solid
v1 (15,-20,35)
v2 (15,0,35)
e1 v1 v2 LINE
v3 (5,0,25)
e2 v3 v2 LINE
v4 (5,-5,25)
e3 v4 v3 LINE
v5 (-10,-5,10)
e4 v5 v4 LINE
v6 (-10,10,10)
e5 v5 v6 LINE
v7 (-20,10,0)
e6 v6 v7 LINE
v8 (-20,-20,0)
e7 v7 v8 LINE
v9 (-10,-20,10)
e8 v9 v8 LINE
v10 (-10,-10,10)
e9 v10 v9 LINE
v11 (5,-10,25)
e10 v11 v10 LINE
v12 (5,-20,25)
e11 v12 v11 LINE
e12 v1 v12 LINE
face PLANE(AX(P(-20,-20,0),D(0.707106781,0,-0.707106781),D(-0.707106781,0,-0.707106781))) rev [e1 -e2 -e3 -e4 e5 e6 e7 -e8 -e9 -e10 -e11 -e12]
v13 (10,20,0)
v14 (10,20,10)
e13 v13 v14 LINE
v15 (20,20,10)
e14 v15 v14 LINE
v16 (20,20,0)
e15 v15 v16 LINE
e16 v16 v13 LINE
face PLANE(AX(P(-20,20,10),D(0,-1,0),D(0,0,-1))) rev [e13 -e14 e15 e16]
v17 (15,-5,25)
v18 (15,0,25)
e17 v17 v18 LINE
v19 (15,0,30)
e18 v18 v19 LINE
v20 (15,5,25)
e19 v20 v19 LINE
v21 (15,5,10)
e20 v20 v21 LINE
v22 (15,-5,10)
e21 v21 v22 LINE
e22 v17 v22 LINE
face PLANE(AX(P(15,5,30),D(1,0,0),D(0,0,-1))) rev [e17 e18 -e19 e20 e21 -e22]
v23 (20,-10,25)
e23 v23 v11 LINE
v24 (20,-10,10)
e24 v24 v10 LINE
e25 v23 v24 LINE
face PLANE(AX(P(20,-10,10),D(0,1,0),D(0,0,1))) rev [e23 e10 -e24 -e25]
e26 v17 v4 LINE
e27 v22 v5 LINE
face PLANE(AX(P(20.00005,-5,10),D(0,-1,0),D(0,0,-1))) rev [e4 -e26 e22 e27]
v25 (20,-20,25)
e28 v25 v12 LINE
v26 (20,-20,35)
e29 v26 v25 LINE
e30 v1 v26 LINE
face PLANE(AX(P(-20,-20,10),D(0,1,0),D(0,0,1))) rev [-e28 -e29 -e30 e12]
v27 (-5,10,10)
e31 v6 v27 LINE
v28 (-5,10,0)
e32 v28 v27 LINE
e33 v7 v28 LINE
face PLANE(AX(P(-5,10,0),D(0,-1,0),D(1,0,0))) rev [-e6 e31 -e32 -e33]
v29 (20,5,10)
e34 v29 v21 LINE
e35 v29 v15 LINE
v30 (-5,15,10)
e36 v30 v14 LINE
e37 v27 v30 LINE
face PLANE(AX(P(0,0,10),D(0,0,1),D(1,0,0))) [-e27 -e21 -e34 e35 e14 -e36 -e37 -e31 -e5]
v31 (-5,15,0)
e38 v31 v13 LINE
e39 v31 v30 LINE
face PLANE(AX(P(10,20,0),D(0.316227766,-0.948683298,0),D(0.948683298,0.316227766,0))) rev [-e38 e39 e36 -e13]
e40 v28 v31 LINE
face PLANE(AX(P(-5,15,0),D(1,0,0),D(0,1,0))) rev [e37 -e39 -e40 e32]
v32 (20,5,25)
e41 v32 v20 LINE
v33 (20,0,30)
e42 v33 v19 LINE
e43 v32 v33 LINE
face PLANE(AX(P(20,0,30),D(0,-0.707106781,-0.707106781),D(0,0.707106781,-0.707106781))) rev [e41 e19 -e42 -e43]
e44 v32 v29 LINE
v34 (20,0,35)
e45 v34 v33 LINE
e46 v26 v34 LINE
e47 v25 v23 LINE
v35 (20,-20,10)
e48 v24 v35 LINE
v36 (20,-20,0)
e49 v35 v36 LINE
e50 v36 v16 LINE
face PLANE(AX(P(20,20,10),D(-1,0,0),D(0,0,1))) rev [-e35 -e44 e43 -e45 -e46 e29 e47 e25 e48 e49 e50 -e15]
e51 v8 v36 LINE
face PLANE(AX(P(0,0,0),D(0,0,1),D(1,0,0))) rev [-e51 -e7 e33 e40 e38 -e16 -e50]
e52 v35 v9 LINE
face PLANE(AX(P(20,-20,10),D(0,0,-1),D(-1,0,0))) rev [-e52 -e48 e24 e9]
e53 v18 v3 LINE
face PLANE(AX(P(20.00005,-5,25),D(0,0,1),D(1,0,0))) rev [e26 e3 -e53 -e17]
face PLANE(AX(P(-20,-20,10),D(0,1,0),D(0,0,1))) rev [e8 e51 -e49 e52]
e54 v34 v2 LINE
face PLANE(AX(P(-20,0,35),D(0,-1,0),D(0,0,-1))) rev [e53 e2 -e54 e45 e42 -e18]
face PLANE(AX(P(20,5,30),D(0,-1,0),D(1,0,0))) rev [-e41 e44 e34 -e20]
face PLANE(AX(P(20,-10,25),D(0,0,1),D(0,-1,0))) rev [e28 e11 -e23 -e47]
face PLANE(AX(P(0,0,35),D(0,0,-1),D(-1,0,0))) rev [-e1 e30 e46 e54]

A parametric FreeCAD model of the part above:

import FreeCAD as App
import Part
import Sketcher

V = App.Vector


def add_polygon(sketch, points):
    """Adds a closed chain of lines whose ends are joined by coincident constraints."""
    first, n = sketch.GeometryCount, len(points)
    for a, b in zip(points, points[1:] + points[:1]):
        sketch.addGeometry(Part.LineSegment(App.Vector(*a, 0), App.Vector(*b, 0)), False)
    for i in range(n):
        sketch.addConstraint(Sketcher.Constraint("Coincident", first + i, 2, first + (i + 1) % n, 1))

doc = App.newDocument("Part")
body = doc.addObject("PartDesign::Body", "Body")

# Sketch on XY plane
sketch1 = body.newObject("Sketcher::SketchObject", "Sketch")
sketch1.AttachmentSupport = (doc.getObject("XY_Plane"), [""])
sketch1.MapMode = "FlatFace"
add_polygon(sketch1, [(-20, 20), (-20, -20), (20, -20), (20, 20)])  # lines 0-3
sketch1.addConstraint([
    Sketcher.Constraint("Vertical", 0),
    Sketcher.Constraint("Horizontal", 1),
    Sketcher.Constraint("Vertical", 2),
    Sketcher.Constraint("Horizontal", 3),
    Sketcher.Constraint("Symmetric", 0, 2, 2, 2, -1, 1),
    Sketcher.Constraint("Equal", 3, 0),
    Sketcher.Constraint("DistanceX", 1, 1, 1, 2, 40.0),
])
pad1 = body.newObject("PartDesign::Pad", "Pad")
pad1.Profile = sketch1
pad1.Length = 10

# Sketch on XY plane
sketch2 = body.newObject("Sketcher::SketchObject", "Sketch001")
sketch2.AttachmentSupport = (doc.getObject("XY_Plane"), [""])
sketch2.MapMode = "FlatFace"
sketch2.AttachmentOffset = App.Placement(V(0, 0, 10), App.Rotation())
add_polygon(sketch2, [(-5, 15), (10, 20), (-5, 20)])  # lines 0-2
sketch2.addConstraint([
    Sketcher.Constraint("Horizontal", 1),
    Sketcher.Constraint("Vertical", 2),
    Sketcher.Constraint("DistanceX", 1, 2, 1, 1, 15.0),
    Sketcher.Constraint("DistanceY", 2, 2, 2, 1, 5.0),
    Sketcher.Constraint("DistanceX", -1, 1, 0, 2, 10.0),
    Sketcher.Constraint("DistanceY", -1, 1, 0, 2, 20.0),
])
pocket1 = body.newObject("PartDesign::Pocket", "Pocket")
pocket1.Profile = sketch2
pocket1.Type = "ThroughAll"

# Sketch on XY plane
sketch3 = body.newObject("Sketcher::SketchObject", "Sketch002")
sketch3.AttachmentSupport = (doc.getObject("XY_Plane"), [""])
sketch3.MapMode = "FlatFace"
sketch3.AttachmentOffset = App.Placement(V(0, 0, 10), App.Rotation())
add_polygon(sketch3, [(-5, 10), (-5, 20), (-20, 20), (-20, 10)])  # lines 0-3
sketch3.addConstraint([
    Sketcher.Constraint("Vertical", 0),
    Sketcher.Constraint("Horizontal", 1),
    Sketcher.Constraint("Vertical", 2),
    Sketcher.Constraint("Horizontal", 3),
    Sketcher.Constraint("DistanceX", 1, 2, 1, 1, 15.0),
    Sketcher.Constraint("DistanceY", 0, 1, 0, 2, 10.0),
    Sketcher.Constraint("DistanceX", 0, 2, -1, 1, 5.0),
    Sketcher.Constraint("DistanceY", -1, 1, 0, 2, 20.0),
])
pocket2 = body.newObject("PartDesign::Pocket", "Pocket001")
pocket2.Profile = sketch3
pocket2.Type = "ThroughAll"

# Sketch on XY plane
sketch4 = body.newObject("Sketcher::SketchObject", "Sketch003")
sketch4.AttachmentSupport = (doc.getObject("XY_Plane"), [""])
sketch4.MapMode = "FlatFace"
sketch4.AttachmentOffset = App.Placement(V(0, 0, 10), App.Rotation())
add_polygon(sketch4, [(-20, 0), (-20, -20), (20, -20), (20, 0)])  # lines 0-3
sketch4.addConstraint([
    Sketcher.Constraint("Vertical", 0),
    Sketcher.Constraint("Horizontal", 1),
    Sketcher.Constraint("Vertical", 2),
    Sketcher.Constraint("Horizontal", 3),
    Sketcher.Constraint("Symmetric", 2, 2, 3, 2, -1, 1),
    Sketcher.Constraint("DistanceX", 1, 1, 1, 2, 40.0),
    Sketcher.Constraint("DistanceY", 0, 2, 0, 1, 20.0),
])
pad2 = body.newObject("PartDesign::Pad", "Pad001")
pad2.Profile = sketch4
pad2.Length = 25

# Sketch on YZ plane
sketch5 = body.newObject("Sketcher::SketchObject", "Sketch004")
sketch5.AttachmentSupport = (doc.getObject("YZ_Plane"), [""])
sketch5.MapMode = "FlatFace"
sketch5.AttachmentOffset = App.Placement(V(0, 0, -20), App.Rotation())
add_polygon(sketch5, [(0, 10), (-5, 10), (-5, 25), (0, 25)])  # lines 0-3
sketch5.addConstraint([
    Sketcher.Constraint("Horizontal", 0),
    Sketcher.Constraint("Vertical", 1),
    Sketcher.Constraint("Horizontal", 2),
    Sketcher.Constraint("Vertical", 3),
    Sketcher.Constraint("PointOnObject", 2, 2, -2),
    Sketcher.Constraint("DistanceX", 0, 2, 0, 1, 5.0),
    Sketcher.Constraint("DistanceY", 1, 1, 1, 2, 15.0),
    Sketcher.Constraint("DistanceY", -1, 1, 0, 2, 10.0),
])
pocket3 = body.newObject("PartDesign::Pocket", "Pocket002")
pocket3.Profile = sketch5
pocket3.Type = "ThroughAll"
pocket3.Reversed = True

# Sketch on YZ plane
sketch6 = body.newObject("Sketcher::SketchObject", "Sketch005")
sketch6.AttachmentSupport = (doc.getObject("YZ_Plane"), [""])
sketch6.MapMode = "FlatFace"
sketch6.AttachmentOffset = App.Placement(V(0, 0, -20), App.Rotation())
add_polygon(sketch6, [(-10, 10), (-20, 10), (-20, 25), (-10, 25)])  # lines 0-3
sketch6.addConstraint([
    Sketcher.Constraint("Horizontal", 0),
    Sketcher.Constraint("Vertical", 1),
    Sketcher.Constraint("Horizontal", 2),
    Sketcher.Constraint("Vertical", 3),
    Sketcher.Constraint("DistanceX", 0, 2, 0, 1, 10.0),
    Sketcher.Constraint("DistanceY", 1, 1, 1, 2, 15.0),
    Sketcher.Constraint("DistanceX", 0, 2, -1, 1, 20.0),
    Sketcher.Constraint("DistanceY", -1, 1, 0, 2, 10.0),
])
pocket4 = body.newObject("PartDesign::Pocket", "Pocket003")
pocket4.Profile = sketch6
pocket4.Type = "ThroughAll"
pocket4.Reversed = True

# Sketch on XZ plane
sketch7 = body.newObject("Sketcher::SketchObject", "Sketch006")
sketch7.AttachmentSupport = (doc.getObject("XZ_Plane"), [""])
sketch7.MapMode = "FlatFace"
sketch7.AttachmentOffset = App.Placement(V(0, 0, -10), App.Rotation())
add_polygon(sketch7, [(15, 35), (-20, 0), (-20, 35)])  # lines 0-2
sketch7.addConstraint([
    Sketcher.Constraint("Vertical", 1),
    Sketcher.Constraint("Horizontal", 2),
    Sketcher.Constraint("PointOnObject", 0, 2, -1),
    Sketcher.Constraint("Equal", 2, 1),
    Sketcher.Constraint("DistanceX", 2, 1, 2, 2, 35.0),
    Sketcher.Constraint("DistanceX", 0, 2, -1, 1, 20.0),
])
pocket5 = body.newObject("PartDesign::Pocket", "Pocket004")
pocket5.Profile = sketch7
pocket5.Type = "ThroughAll"
pocket5.Reversed = True

# Sketch on XY plane
sketch8 = body.newObject("Sketcher::SketchObject", "Sketch007")
sketch8.AttachmentSupport = (doc.getObject("XY_Plane"), [""])
sketch8.MapMode = "FlatFace"
sketch8.AttachmentOffset = App.Placement(V(0, 0, 10), App.Rotation())
add_polygon(sketch8, [(15, 5), (15, -5), (20, -5), (20, 5)])  # lines 0-3
sketch8.addConstraint([
    Sketcher.Constraint("Vertical", 0),
    Sketcher.Constraint("Horizontal", 1),
    Sketcher.Constraint("Vertical", 2),
    Sketcher.Constraint("Horizontal", 3),
    Sketcher.Constraint("DistanceX", 1, 1, 1, 2, 5.0),
    Sketcher.Constraint("DistanceY", 0, 2, 0, 1, 10.0),
    Sketcher.Constraint("DistanceX", -1, 1, 0, 2, 15.0),
    Sketcher.Constraint("DistanceY", 0, 2, -1, 1, 5.0),
])
pad3 = body.newObject("PartDesign::Pad", "Pad002")
pad3.Profile = sketch8
pad3.Length = 20

# Sketch on YZ plane
sketch9 = body.newObject("Sketcher::SketchObject", "Sketch008")
sketch9.AttachmentSupport = (doc.getObject("YZ_Plane"), [""])
sketch9.MapMode = "FlatFace"
sketch9.AttachmentOffset = App.Placement(V(0, 0, 15), App.Rotation())
add_polygon(sketch9, [(5, 25), (0, 30), (5, 30)])  # lines 0-2
sketch9.addConstraint([
    Sketcher.Constraint("Horizontal", 1),
    Sketcher.Constraint("Vertical", 2),
    Sketcher.Constraint("PointOnObject", 0, 2, -2),
    Sketcher.Constraint("Equal", 1, 2),
    Sketcher.Constraint("DistanceX", 1, 1, 1, 2, 5.0),
    Sketcher.Constraint("DistanceY", -1, 1, 0, 2, 30.0),
])
pocket6 = body.newObject("PartDesign::Pocket", "Pocket005")
pocket6.Profile = sketch9
pocket6.Type = "ThroughAll"
pocket6.Reversed = True

doc.recompute()
